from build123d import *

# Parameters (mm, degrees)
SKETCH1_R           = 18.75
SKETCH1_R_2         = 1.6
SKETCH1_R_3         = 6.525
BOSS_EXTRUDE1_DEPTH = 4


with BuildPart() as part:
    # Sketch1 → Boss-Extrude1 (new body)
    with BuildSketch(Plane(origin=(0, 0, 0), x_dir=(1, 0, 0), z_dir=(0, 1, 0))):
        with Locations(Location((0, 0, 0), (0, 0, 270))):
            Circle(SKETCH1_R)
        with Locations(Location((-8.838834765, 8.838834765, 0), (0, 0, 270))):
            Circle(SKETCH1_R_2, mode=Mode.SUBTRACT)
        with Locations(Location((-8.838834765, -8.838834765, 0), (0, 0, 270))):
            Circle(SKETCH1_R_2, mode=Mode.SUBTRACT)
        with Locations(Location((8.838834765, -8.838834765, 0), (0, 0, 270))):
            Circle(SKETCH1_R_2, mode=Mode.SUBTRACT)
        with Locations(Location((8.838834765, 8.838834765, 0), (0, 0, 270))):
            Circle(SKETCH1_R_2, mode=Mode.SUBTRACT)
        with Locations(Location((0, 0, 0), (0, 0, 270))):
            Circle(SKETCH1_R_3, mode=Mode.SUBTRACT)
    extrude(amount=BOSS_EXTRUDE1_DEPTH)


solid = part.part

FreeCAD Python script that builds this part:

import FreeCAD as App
import Part
import Sketcher

doc = App.newDocument("Part")
body = doc.addObject("PartDesign::Body", "Body")

# Sketch on XZ plane
sketch1 = body.newObject("Sketcher::SketchObject", "Sketch")
sketch1.AttachmentSupport = (doc.getObject("XZ_Plane"), [""])
sketch1.MapMode = "FlatFace"
sketch1.addGeometry([
    Part.Circle(App.Vector(0, 0, 0), App.Vector(0, 0, 1), 18.8),  # 0
    Part.Circle(App.Vector(-8.8, -8.8, 0), App.Vector(0, 0, 1), 1.6),  # 1
    Part.Circle(App.Vector(-8.8, 8.8, 0), App.Vector(0, 0, 1), 1.6),  # 2
    Part.Circle(App.Vector(8.8, -8.8, 0), App.Vector(0, 0, 1), 1.6),  # 3
    Part.Circle(App.Vector(0, 0, 0), App.Vector(0, 0, 1), 6.5),  # 4
    Part.Circle(App.Vector(8.8, 8.8, 0), App.Vector(0, 0, 1), 1.6),  # 5
], False)
sketch1.addConstraint([
    Sketcher.Constraint("Coincident", 0, 3, -1, 1),
    Sketcher.Constraint("Coincident", 4, 3, -1, 1),
    Sketcher.Constraint("Equal", 1, 2),
    Sketcher.Constraint("Equal", 2, 3),
    Sketcher.Constraint("Equal", 3, 5),
    Sketcher.Constraint("Symmetric", 2, 3, 3, 3, -1, 1),
    Sketcher.Constraint("Symmetric", 1, 3, 5, 3, -1, 1),
    Sketcher.Constraint("Symmetric", 1, 3, 3, 3, -2),
    Sketcher.Constraint("Diameter", 0, 37.5),
    Sketcher.Constraint("Diameter", 1, 3.2),
    Sketcher.Constraint("Diameter", 4, 13.05),
    Sketcher.Constraint("DistanceY", 1, 3, 2, 3, 17.67767),
    Sketcher.Constraint("DistanceX", 1, 3, 3, 3, 17.67767),
])
pad1 = body.newObject("PartDesign::Pad", "Pad")
pad1.Profile = sketch1
pad1.Length = 4
pad1.Reversed = True

doc.recompute()
